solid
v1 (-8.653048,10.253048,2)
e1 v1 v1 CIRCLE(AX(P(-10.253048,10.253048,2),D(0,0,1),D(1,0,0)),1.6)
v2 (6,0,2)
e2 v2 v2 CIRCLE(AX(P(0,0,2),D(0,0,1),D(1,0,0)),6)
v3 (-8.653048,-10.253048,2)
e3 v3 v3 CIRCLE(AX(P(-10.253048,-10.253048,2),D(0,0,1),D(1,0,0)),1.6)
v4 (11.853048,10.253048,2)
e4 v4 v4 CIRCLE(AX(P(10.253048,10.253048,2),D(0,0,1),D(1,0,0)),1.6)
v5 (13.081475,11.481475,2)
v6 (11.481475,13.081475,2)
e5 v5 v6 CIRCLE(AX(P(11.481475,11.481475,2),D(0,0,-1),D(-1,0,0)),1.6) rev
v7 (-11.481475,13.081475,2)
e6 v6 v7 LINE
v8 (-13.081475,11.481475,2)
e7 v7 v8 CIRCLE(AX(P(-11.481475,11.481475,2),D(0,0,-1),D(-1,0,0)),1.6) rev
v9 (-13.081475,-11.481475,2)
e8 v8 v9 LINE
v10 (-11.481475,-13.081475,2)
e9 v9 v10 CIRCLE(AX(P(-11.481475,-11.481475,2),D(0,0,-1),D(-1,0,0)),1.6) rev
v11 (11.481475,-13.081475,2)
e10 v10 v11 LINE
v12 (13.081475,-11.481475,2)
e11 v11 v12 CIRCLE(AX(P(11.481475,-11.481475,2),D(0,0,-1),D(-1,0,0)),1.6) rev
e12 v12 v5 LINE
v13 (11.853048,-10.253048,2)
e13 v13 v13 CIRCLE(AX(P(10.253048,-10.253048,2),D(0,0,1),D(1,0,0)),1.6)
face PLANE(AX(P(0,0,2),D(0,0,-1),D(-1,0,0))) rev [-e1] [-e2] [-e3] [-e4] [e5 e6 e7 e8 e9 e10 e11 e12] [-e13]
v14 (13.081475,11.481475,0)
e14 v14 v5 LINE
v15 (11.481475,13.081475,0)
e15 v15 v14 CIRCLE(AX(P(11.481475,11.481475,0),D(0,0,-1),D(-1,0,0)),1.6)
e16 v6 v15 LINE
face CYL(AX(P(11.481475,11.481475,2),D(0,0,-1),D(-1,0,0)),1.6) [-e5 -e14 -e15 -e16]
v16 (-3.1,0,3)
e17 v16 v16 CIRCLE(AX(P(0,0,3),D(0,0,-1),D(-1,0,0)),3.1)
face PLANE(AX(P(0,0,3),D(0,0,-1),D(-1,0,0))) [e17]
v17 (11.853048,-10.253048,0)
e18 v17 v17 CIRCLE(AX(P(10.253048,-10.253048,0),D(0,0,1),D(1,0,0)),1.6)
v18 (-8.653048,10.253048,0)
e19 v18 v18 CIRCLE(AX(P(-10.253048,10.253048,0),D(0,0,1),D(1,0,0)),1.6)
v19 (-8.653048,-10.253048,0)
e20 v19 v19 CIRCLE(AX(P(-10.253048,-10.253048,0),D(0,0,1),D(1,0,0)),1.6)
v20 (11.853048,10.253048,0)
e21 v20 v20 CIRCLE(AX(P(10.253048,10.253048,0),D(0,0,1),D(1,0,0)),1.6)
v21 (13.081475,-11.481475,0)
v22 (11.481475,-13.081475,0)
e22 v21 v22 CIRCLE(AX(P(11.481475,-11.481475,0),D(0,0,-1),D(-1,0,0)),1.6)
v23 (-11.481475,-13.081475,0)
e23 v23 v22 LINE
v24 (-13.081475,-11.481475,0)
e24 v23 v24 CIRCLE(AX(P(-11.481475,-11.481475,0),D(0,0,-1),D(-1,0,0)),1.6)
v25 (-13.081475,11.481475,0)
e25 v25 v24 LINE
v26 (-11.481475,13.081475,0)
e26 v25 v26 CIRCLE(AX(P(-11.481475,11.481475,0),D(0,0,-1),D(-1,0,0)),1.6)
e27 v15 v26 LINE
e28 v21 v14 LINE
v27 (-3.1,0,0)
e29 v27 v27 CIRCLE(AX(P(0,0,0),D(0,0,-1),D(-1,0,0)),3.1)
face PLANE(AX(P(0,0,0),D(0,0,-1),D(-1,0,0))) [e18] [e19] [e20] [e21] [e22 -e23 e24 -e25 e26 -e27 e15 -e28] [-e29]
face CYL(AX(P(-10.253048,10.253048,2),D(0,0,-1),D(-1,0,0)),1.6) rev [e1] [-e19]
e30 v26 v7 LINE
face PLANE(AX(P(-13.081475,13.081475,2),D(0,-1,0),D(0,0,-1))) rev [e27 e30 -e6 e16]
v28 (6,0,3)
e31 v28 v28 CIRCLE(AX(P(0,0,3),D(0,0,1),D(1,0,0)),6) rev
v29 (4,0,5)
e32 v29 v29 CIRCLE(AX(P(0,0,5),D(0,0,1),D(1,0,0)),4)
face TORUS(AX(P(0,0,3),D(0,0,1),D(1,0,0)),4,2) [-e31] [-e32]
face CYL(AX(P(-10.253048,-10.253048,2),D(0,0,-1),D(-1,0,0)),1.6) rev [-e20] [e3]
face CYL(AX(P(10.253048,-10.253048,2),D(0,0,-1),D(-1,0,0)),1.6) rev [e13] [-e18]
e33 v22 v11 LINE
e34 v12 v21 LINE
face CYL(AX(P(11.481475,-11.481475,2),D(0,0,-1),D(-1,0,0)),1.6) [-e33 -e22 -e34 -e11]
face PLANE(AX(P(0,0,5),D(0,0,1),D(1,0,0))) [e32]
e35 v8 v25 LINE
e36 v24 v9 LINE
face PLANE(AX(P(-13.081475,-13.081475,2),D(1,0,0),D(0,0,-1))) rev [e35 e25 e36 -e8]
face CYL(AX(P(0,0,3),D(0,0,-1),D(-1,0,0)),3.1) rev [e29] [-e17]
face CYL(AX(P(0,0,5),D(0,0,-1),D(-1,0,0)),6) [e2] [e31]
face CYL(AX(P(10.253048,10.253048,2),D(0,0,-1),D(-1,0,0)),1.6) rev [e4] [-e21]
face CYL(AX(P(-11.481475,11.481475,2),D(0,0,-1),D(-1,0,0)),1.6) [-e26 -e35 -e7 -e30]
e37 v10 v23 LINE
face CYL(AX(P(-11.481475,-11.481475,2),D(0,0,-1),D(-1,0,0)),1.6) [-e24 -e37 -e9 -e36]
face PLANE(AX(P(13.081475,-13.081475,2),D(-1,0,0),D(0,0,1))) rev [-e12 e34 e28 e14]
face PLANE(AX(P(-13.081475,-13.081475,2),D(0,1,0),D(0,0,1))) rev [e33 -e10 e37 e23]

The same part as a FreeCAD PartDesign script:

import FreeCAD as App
import Part
import Sketcher
from FreeCAD import Vector
Q = App.Units.Quantity


def edges_at(feature, points):
    """Names of the edges that pass closest to the given points."""
    edges = feature.Shape.Edges
    near = lambda p: min(range(len(edges)), key=lambda i: edges[i].distToShape(Part.Vertex(*p))[0])
    return sorted({f"Edge{near(p) + 1}" for p in points})


def add_polygon(sketch, points):
    """Adds a closed chain of lines whose ends are joined by coincident constraints."""
    first, n = sketch.GeometryCount, len(points)
    for a, b in zip(points, points[1:] + points[:1]):
        sketch.addGeometry(Part.LineSegment(App.Vector(*a, 0), App.Vector(*b, 0)), False)
    for i in range(n):
        sketch.addConstraint(Sketcher.Constraint("Coincident", first + i, 2, first + (i + 1) % n, 1))

doc = App.newDocument("Part")
params = doc.addObject("Spreadsheet::Sheet", "Params")
for row, (alias, value) in enumerate([
    ("sketch1_diameter", "3.2 mm"),
    ("pad1_length", "2 mm"),
    ("sketch2_diameter", "12 mm"),
    ("pad2_length", "3 mm"),
    ("sketch3_diameter", "6.2 mm"),
    ("pocket1_length", "3 mm"),
    ("fillet_radius", "2 mm"),
    ("fillet2_radius", "1.6 mm"),
], start=1):
    params.set(f"A{row}", alias)
    params.set(f"B{row}", "=" + value)
    params.setAlias(f"B{row}", alias)

body = doc.addObject("PartDesign::Body", "Body")

# Sketch on XY plane
sketch1 = body.newObject("Sketcher::SketchObject", "Sketch")
sketch1.AttachmentSupport = (doc.getObject("XY_Plane"), [""])
sketch1.MapMode = "FlatFace"
add_polygon(sketch1, [(-13.081475, 13.081475), (-13.081475, -13.081475), (13.081475, -13.081475), (13.081475, 13.081475)])  # lines 0-3
sketch1.addGeometry(Part.Circle(Vector(-10.253048, -10.253048, 0), Vector(0, 0, 1), 1.6), False)  # 4
sketch1.addGeometry(Part.Circle(Vector(10.253048, -10.253048, 0), Vector(0, 0, 1), 1.6), False)  # 5
sketch1.addGeometry(Part.Circle(Vector(-10.253048, 10.253048, 0), Vector(0, 0, 1), 1.6), False)  # 6
sketch1.addGeometry(Part.Circle(Vector(10.253048, 10.253048, 0), Vector(0, 0, 1), 1.6), False)  # 7
sketch1.addConstraint([
    Sketcher.Constraint("Vertical", 0),
    Sketcher.Constraint("Horizontal", 1),
    Sketcher.Constraint("Vertical", 2),
    Sketcher.Constraint("Horizontal", 3),
    Sketcher.Constraint("Equal", 4, 5),
    Sketcher.Constraint("Equal", 5, 6),
    Sketcher.Constraint("Equal", 6, 7),
    Sketcher.Constraint("Symmetric", 5, 3, 6, 3, -1, 1),
    Sketcher.Constraint("Symmetric", 4, 3, 7, 3, -1, 1),
    Sketcher.Constraint("Symmetric", 0, 2, 2, 2, -1, 1),
    Sketcher.Constraint("Symmetric", 4, 3, 5, 3, -2),
    Sketcher.Constraint("Equal", 3, 0),
    Sketcher.Constraint("Diameter", 4, Q("3.2 mm")),
    Sketcher.Constraint("DistanceX", 1, 1, 1, 2, Q("26.162951 mm")),
    Sketcher.Constraint("DistanceX", 4, 3, -1, 1, Q("10.253048 mm")),
    Sketcher.Constraint("DistanceY", 4, 3, -1, 1, Q("10.253048 mm")),
])
sketch1.setExpression("Constraints[16]", "Params.sketch1_diameter")
pad1 = body.newObject("PartDesign::Pad", "Pad")
pad1.Profile = sketch1
pad1.setExpression("Length", "Params.pad1_length")

# Sketch on XY plane
sketch2 = body.newObject("Sketcher::SketchObject", "Sketch001")
sketch2.AttachmentSupport = (doc.getObject("XY_Plane"), [""])
sketch2.MapMode = "FlatFace"
sketch2.AttachmentOffset = App.Placement(Vector(0, 0, 2), App.Rotation())
sketch2.addGeometry(Part.Circle(Vector(0, 0, 0), Vector(0, 0, 1), 6), False)
sketch2.addConstraint([
    Sketcher.Constraint("Coincident", 0, 3, -1, 1),
    Sketcher.Constraint("Diameter", 0, Q("12 mm")),
])
sketch2.setExpression("Constraints[1]", "Params.sketch2_diameter")
pad2 = body.newObject("PartDesign::Pad", "Pad001")
pad2.Profile = sketch2
pad2.setExpression("Length", "Params.pad2_length")

# Sketch on XY plane
sketch3 = body.newObject("Sketcher::SketchObject", "Sketch002")
sketch3.AttachmentSupport = (doc.getObject("XY_Plane"), [""])
sketch3.MapMode = "FlatFace"
sketch3.addGeometry(Part.Circle(Vector(0, 0, 0), Vector(0, 0, 1), 3.1), False)
sketch3.addConstraint([
    Sketcher.Constraint("Coincident", 0, 3, -1, 1),
    Sketcher.Constraint("Diameter", 0, Q("6.2 mm")),
])
sketch3.setExpression("Constraints[1]", "Params.sketch3_diameter")
pocket1 = body.newObject("PartDesign::Pocket", "Pocket")
pocket1.Profile = sketch3
pocket1.setExpression("Length", "Params.pocket1_length")
pocket1.Reversed = True
doc.recompute()

fillet = body.newObject("PartDesign::Fillet", "Fillet")
fillet.Base = (pocket1, edges_at(pocket1, [(-6, 0, 5)]))
fillet.setExpression("Radius", "Params.fillet_radius")
doc.recompute()

fillet2 = body.newObject("PartDesign::Fillet", "Fillet001")
fillet2.Base = (fillet, edges_at(fillet, [
    (13.081, -13.081, 1),
    (-13.081, -13.081, 1),
    (-13.081, 13.081, 1),
    (13.081, 13.081, 1),
]))
fillet2.setExpression("Radius", "Params.fillet2_radius")

doc.recompute()
